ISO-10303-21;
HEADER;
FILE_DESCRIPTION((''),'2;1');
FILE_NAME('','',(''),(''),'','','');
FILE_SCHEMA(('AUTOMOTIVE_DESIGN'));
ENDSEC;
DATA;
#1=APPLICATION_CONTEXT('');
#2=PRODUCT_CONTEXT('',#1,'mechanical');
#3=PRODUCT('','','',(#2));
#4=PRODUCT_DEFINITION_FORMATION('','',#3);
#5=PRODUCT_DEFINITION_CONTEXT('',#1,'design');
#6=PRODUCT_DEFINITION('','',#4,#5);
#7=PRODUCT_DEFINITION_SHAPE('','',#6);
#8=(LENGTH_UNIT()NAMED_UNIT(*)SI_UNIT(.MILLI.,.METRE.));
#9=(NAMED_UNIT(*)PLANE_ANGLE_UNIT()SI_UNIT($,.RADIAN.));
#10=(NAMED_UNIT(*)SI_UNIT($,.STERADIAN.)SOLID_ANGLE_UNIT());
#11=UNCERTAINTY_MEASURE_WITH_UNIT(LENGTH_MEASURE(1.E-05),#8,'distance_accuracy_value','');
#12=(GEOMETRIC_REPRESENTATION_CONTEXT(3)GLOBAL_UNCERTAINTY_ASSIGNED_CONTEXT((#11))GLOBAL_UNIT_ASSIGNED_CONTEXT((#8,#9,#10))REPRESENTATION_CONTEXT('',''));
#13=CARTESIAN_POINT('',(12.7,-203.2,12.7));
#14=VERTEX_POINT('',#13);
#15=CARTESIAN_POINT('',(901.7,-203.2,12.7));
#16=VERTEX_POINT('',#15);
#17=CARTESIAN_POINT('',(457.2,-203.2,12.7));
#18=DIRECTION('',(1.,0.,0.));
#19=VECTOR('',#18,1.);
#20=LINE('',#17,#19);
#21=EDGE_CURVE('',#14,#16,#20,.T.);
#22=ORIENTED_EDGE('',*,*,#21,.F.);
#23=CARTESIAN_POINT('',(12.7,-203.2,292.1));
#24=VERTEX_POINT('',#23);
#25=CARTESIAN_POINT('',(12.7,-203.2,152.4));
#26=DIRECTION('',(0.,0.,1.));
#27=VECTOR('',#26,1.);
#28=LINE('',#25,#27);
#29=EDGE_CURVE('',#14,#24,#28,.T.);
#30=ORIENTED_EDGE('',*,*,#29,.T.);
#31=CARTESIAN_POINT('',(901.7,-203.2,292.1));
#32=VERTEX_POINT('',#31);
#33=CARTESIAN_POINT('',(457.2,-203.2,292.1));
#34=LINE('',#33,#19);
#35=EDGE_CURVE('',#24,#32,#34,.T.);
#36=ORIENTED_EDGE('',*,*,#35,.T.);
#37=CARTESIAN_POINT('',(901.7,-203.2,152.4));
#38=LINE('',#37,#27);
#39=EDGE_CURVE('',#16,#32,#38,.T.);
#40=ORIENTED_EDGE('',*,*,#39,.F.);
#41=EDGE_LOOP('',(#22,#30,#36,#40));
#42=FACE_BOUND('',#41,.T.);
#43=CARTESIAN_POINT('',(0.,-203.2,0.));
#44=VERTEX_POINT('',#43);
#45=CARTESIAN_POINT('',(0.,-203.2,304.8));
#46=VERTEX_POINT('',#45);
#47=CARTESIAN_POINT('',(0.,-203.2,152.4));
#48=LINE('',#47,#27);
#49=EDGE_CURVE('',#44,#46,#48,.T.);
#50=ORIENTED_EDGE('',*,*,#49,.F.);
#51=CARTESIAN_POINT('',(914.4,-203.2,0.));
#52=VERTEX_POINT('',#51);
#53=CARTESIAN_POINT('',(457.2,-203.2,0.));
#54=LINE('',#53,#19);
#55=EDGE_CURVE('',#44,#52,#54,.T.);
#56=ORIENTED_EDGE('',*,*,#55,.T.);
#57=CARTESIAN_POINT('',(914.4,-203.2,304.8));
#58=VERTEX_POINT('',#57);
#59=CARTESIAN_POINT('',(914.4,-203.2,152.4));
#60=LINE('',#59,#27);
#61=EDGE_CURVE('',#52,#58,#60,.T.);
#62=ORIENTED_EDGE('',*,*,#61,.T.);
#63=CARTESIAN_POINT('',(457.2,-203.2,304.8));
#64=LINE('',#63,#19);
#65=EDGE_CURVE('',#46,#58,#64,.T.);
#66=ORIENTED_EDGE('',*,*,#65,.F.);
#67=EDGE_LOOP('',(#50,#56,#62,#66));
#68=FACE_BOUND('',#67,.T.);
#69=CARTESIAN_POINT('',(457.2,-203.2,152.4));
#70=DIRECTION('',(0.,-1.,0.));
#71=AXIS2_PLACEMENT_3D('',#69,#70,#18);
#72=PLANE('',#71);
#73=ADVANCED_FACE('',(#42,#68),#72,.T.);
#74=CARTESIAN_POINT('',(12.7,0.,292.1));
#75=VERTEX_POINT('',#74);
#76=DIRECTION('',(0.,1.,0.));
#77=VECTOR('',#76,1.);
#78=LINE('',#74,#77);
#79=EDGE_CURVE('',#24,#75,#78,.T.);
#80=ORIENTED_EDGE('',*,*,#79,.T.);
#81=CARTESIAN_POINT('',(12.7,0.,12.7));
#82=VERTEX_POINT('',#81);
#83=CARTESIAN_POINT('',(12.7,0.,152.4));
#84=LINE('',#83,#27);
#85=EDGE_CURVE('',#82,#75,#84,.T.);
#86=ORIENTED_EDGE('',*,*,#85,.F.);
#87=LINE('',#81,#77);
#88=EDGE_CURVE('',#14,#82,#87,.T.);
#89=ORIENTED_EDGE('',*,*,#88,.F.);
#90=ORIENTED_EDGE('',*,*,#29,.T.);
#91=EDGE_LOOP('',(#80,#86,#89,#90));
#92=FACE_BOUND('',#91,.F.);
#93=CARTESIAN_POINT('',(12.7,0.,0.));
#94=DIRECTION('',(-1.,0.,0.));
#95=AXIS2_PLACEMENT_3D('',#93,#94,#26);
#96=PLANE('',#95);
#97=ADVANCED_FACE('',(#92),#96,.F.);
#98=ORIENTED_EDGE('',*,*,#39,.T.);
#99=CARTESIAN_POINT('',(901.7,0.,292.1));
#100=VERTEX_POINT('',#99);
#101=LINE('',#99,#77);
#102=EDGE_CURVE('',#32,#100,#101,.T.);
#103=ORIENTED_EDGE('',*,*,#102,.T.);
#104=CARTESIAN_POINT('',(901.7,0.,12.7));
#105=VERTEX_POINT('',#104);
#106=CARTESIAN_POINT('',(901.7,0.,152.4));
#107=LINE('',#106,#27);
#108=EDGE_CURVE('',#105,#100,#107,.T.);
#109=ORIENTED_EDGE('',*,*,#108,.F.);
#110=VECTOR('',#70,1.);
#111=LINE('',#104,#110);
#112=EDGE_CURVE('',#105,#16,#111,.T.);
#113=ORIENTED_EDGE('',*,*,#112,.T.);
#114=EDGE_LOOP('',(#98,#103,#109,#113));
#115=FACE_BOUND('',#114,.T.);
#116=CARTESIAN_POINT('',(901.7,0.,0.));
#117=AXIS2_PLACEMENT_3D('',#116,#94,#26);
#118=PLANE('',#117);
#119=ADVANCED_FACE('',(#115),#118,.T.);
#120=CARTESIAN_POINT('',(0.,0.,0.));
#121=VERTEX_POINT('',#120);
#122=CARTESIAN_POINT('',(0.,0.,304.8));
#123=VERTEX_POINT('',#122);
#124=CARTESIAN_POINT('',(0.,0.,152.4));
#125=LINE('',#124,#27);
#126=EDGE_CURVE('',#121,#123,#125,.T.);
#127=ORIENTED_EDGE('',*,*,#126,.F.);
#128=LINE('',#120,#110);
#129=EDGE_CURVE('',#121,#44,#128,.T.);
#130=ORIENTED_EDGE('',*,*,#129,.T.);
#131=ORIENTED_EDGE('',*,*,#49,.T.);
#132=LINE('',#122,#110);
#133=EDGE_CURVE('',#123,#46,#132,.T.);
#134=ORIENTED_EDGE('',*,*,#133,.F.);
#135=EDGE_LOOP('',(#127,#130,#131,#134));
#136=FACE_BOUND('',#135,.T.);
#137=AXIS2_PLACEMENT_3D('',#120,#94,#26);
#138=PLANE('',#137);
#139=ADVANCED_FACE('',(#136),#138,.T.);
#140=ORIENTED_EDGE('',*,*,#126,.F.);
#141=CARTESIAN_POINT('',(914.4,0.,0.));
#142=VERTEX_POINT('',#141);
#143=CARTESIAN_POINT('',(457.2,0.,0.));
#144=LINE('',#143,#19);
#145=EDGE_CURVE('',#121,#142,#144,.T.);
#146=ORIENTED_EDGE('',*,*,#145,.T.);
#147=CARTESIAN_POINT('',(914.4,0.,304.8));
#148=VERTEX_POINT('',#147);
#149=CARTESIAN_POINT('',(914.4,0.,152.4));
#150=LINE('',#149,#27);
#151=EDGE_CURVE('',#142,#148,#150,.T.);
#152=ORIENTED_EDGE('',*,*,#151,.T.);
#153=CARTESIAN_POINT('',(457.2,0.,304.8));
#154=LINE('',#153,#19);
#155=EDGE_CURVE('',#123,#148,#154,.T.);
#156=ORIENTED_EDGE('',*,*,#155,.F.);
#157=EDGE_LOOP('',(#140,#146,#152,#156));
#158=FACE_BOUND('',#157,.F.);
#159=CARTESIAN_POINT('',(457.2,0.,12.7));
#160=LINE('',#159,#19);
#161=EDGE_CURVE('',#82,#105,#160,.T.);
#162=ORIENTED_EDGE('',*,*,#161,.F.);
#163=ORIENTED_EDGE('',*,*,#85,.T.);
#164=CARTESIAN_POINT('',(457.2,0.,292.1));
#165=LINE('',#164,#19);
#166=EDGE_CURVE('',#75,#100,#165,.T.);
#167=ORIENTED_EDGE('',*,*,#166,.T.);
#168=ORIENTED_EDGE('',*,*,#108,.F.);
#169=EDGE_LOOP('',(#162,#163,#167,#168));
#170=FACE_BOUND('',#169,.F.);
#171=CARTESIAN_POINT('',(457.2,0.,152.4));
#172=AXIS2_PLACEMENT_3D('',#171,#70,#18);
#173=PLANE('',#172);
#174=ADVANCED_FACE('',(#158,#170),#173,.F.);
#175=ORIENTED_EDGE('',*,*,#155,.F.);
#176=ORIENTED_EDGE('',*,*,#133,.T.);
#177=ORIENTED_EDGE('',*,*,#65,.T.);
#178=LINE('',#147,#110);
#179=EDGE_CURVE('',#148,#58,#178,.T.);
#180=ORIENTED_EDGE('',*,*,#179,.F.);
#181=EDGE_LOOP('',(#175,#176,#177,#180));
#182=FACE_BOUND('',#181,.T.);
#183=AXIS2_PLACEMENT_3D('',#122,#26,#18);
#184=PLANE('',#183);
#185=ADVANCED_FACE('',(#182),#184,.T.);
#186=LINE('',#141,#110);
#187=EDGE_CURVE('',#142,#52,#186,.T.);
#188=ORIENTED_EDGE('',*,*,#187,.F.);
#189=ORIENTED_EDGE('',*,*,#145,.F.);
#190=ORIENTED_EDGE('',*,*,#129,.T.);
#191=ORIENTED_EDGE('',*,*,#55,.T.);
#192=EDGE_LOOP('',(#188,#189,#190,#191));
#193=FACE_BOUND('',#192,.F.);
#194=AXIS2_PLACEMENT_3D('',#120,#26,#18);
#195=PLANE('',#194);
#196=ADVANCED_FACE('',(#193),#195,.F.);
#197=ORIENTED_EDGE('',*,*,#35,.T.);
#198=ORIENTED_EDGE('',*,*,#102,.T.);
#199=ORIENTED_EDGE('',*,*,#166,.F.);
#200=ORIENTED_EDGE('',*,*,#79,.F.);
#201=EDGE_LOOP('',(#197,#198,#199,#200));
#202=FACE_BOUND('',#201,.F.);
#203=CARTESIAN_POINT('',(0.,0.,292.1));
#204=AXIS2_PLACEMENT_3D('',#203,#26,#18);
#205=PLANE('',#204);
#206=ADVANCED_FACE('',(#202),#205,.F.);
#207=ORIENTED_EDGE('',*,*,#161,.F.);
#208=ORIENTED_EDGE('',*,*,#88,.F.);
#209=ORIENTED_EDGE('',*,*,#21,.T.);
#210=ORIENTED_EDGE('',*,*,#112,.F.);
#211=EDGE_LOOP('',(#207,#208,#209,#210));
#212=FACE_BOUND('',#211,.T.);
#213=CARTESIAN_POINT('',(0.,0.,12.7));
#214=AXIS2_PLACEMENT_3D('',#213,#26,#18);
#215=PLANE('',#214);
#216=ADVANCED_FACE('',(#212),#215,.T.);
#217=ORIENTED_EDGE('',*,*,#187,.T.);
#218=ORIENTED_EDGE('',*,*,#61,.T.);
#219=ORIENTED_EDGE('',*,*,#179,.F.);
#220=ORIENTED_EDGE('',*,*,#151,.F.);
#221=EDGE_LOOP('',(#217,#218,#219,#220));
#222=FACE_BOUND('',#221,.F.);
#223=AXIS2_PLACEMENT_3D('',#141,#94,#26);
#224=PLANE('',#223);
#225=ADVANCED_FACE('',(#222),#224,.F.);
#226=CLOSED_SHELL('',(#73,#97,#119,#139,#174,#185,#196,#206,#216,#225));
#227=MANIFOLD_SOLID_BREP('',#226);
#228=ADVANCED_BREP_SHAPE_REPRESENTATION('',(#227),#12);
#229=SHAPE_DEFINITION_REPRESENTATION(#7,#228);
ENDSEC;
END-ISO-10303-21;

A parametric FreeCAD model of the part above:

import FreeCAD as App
import Part
import Sketcher

V = App.Vector
Q = App.Units.Quantity


def faces_at(feature, points):
    """Names of the faces that lie closest to the given points."""
    faces = feature.Shape.Faces
    near = lambda p: min(range(len(faces)), key=lambda i: faces[i].distToShape(Part.Vertex(*p))[0])
    return sorted({f"Face{near(p) + 1}" for p in points})

doc = App.newDocument("Part")
body = doc.addObject("PartDesign::Body", "Body")

sketch1 = doc.addObject("Sketcher::SketchObject", "Sketch")
body.addObject(sketch1)
sketch1.AttachmentSupport = (doc.XZ_Plane, [""])
sketch1.MapMode = "FlatFace"
sketch1.addGeometry([
    Part.LineSegment(V(0, 305, 0), V(0, 0, 0)),
    Part.LineSegment(V(0, 0, 0), V(914, 0, 0)),
    Part.LineSegment(V(914, 0, 0), V(914, 305, 0)),
    Part.LineSegment(V(914, 305, 0), V(0, 305, 0)),
], False)
sketch1.addConstraint([
    Sketcher.Constraint("Coincident", 0, 2, 1, 1),
    Sketcher.Constraint("Coincident", 1, 2, 2, 1),
    Sketcher.Constraint("Coincident", 2, 2, 3, 1),
    Sketcher.Constraint("Coincident", 3, 2, 0, 1),
    Sketcher.Constraint("Vertical", 0),
    Sketcher.Constraint("Horizontal", 1),
    Sketcher.Constraint("Vertical", 2),
    Sketcher.Constraint("Horizontal", 3),
    Sketcher.Constraint("Coincident", 0, 2, -1, 1),
    Sketcher.Constraint("DistanceX", 1, 1, 1, 2, Q("36 in")),
    Sketcher.Constraint("DistanceY", 0, 2, 0, 1, Q("12 in")),
])
pad1 = doc.addObject("PartDesign::Pad", "Pad")
body.addObject(pad1)
pad1.Profile = sketch1
pad1.Length = Q("8 in")
doc.recompute()

thickness = doc.addObject("PartDesign::Thickness", "Thickness")
body.addObject(thickness)
thickness.Base = (pad1, faces_at(pad1, [(457.2, -203.2, 152.4), (457.2, 0, 152.4)]))
thickness.Value = Q("0.5 in")
thickness.Reversed = True
thickness.Join = "Arc"

doc.recompute()
